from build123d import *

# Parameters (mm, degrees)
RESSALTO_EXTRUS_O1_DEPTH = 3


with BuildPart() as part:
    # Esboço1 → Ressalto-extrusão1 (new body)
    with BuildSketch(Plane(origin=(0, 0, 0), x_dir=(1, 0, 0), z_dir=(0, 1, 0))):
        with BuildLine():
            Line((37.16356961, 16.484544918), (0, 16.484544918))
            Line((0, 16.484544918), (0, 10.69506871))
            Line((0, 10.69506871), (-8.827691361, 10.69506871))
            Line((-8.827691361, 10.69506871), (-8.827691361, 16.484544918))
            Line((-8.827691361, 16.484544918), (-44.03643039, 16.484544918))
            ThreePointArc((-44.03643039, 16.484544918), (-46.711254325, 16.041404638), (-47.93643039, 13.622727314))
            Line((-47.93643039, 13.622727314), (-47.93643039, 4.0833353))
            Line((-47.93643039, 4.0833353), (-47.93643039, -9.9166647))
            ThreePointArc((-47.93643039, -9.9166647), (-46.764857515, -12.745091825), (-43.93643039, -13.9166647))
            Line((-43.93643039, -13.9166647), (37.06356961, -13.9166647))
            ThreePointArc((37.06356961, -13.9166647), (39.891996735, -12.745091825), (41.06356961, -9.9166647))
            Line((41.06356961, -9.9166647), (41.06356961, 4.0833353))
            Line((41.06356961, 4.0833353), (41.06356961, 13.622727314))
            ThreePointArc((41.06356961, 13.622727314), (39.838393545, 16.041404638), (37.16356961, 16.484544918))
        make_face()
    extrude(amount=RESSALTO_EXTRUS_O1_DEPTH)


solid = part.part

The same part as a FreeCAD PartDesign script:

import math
import FreeCAD as App
import Part
import Sketcher
from FreeCAD import Vector
Q = App.Units.Quantity

doc = App.newDocument("Part")
body = doc.addObject("PartDesign::Body", "Body")

sketch1 = body.newObject("Sketcher::SketchObject", "Sketch")
sketch1.AttachmentSupport = (doc.getObject("XZ_Plane"), [""])
sketch1.MapMode = "FlatFace"
sketch1.addGeometry([
    Part.LineSegment(Vector(37.2, -16.5, 0), Vector(0, -16.5, 0)),
    Part.LineSegment(Vector(0, -16.5, 0), Vector(0, -10.7, 0)),
    Part.LineSegment(Vector(0, -10.7, 0), Vector(-8.8, -10.7, 0)),
    Part.LineSegment(Vector(-8.8, -10.7, 0), Vector(-8.8, -16.5, 0)),
    Part.LineSegment(Vector(-8.8, -16.5, 0), Vector(-44, -16.5, 0)),
    Part.ArcOfCircle(Part.Circle(Vector(-44.9, -13.6, 0), Vector(0, 0, 1), 3), math.radians(-180), math.radians(-73)),
    Part.LineSegment(Vector(-47.9, -13.6, 0), Vector(-47.9, 9.9, 0)),
    Part.ArcOfCircle(Part.Circle(Vector(-43.9, 9.9, 0), Vector(0, 0, 1), 4), math.radians(90), math.radians(180)),
    Part.LineSegment(Vector(-43.9, 13.9, 0), Vector(37.1, 13.9, 0)),
    Part.ArcOfCircle(Part.Circle(Vector(37.1, 9.9, 0), Vector(0, 0, 1), 4), math.radians(0), math.radians(90)),
    Part.LineSegment(Vector(41.1, 9.9, 0), Vector(41.1, -13.6, 0)),
    Part.ArcOfCircle(Part.Circle(Vector(38.1, -13.6, 0), Vector(0, 0, 1), 3), math.radians(-107), math.radians(0)),
], False)
sketch1.addConstraint([
    Sketcher.Constraint("Coincident", 0, 2, 1, 1),
    Sketcher.Constraint("Coincident", 1, 2, 2, 1),
    Sketcher.Constraint("Coincident", 2, 2, 3, 1),
    Sketcher.Constraint("Coincident", 3, 2, 4, 1),
    Sketcher.Constraint("Coincident", 4, 2, 5, 2),
    Sketcher.Constraint("Tangent", 5, 1, 6, 1),
    Sketcher.Constraint("Tangent", 6, 2, 7, 2),
    Sketcher.Constraint("Tangent", 7, 1, 8, 1),
    Sketcher.Constraint("Tangent", 8, 2, 9, 2),
    Sketcher.Constraint("Tangent", 9, 1, 10, 1),
    Sketcher.Constraint("Tangent", 10, 2, 11, 2),
    Sketcher.Constraint("Coincident", 11, 1, 0, 1),
    Sketcher.Constraint("Horizontal", 0),
    Sketcher.Constraint("Vertical", 1),
    Sketcher.Constraint("Horizontal", 2),
    Sketcher.Constraint("Vertical", 3),
    Sketcher.Constraint("Horizontal", 4),
    Sketcher.Constraint("Vertical", 6),
    Sketcher.Constraint("Horizontal", 8),
    Sketcher.Constraint("Vertical", 10),
    Sketcher.Constraint("Equal", 7, 9),
    Sketcher.Constraint("Equal", 5, 11),
    Sketcher.Constraint("PointOnObject", 0, 2, -2),
    Sketcher.Constraint("Horizontal", 5, 3, 11, 3),
    Sketcher.Constraint("Horizontal", 0, 2, 3, 2),
    Sketcher.Constraint("Radius", 5, Q("3 mm")),
    Sketcher.Constraint("Radius", 7, Q("4 mm")),
    Sketcher.Constraint("DistanceX", 8, 1, 8, 2, Q("81 mm")),
    Sketcher.Constraint("DistanceX", 5, 3, 4, 2, Q("0.9 mm")),
    Sketcher.Constraint("DistanceX", 0, 2, 0, 1, Q("37.16357 mm")),
    Sketcher.Constraint("DistanceX", 2, 2, 2, 1, Q("8.827691 mm")),
    Sketcher.Constraint("DistanceY", 1, 1, 1, 2, Q("5.789476 mm")),
    Sketcher.Constraint("DistanceY", 6, 1, 6, 2, Q("23.539392 mm")),
    Sketcher.Constraint("DistanceY", 1, 2, -1, 1, Q("10.695069 mm")),
])
pad1 = body.newObject("PartDesign::Pad", "Pad")
pad1.Profile = sketch1
pad1.Length = 3
pad1.Reversed = True

doc.recompute()
